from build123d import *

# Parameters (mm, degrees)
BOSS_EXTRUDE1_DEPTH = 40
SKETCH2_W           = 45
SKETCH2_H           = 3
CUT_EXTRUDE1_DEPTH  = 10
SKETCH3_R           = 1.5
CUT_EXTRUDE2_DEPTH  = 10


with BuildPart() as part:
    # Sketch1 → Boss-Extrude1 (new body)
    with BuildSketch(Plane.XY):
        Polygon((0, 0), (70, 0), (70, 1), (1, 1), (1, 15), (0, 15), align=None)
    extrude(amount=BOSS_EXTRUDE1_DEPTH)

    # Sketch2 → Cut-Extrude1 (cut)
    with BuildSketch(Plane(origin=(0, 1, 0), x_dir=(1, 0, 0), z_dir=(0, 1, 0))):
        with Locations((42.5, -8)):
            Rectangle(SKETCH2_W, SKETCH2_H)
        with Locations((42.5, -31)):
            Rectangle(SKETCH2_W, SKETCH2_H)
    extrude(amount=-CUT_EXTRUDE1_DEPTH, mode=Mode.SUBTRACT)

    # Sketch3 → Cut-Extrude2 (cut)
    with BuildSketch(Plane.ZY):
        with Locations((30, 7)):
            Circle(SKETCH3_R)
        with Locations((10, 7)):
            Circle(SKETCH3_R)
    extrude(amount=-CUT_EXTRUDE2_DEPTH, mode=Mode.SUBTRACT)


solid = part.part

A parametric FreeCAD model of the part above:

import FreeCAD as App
import Part
import Sketcher
from FreeCAD import Vector


def add_polygon(sketch, points):
    """Adds a closed chain of lines whose ends are joined by coincident constraints."""
    first, n = sketch.GeometryCount, len(points)
    for a, b in zip(points, points[1:] + points[:1]):
        sketch.addGeometry(Part.LineSegment(App.Vector(*a, 0), App.Vector(*b, 0)), False)
    for i in range(n):
        sketch.addConstraint(Sketcher.Constraint("Coincident", first + i, 2, first + (i + 1) % n, 1))

doc = App.newDocument("Part")
params = doc.addObject("Spreadsheet::Sheet", "Params")
for row, (alias, value) in enumerate([
    ("sketch1_width", "70 mm"),
    ("sketch1_width2", "69 mm"),
    ("sketch1_height", "14 mm"),
    ("pad1_length", "40 mm"),
    ("sketch2_width", "45 mm"),
    ("sketch2_height", "3 mm"),
    ("pocket1_length", "10 mm"),
    ("sketch3_diameter", "3 mm"),
    ("pocket2_length", "10 mm"),
], start=1):
    params.set(f"A{row}", alias)
    params.set(f"B{row}", "=" + value)
    params.setAlias(f"B{row}", alias)

body = doc.addObject("PartDesign::Body", "Body")

sketch1 = doc.addObject("Sketcher::SketchObject", "Sketch")
body.addObject(sketch1)
sketch1.AttachmentSupport = (doc.XY_Plane, [""])
sketch1.MapMode = "FlatFace"
add_polygon(sketch1, [(0, 0), (70, 0), (70, 1), (1, 1), (1, 15), (0, 15)])
sketch1.addConstraint([
    Sketcher.Constraint("Horizontal", 0),
    Sketcher.Constraint("Vertical", 1),
    Sketcher.Constraint("Horizontal", 2),
    Sketcher.Constraint("Vertical", 3),
    Sketcher.Constraint("Horizontal", 4),
    Sketcher.Constraint("Vertical", 5),
    Sketcher.Constraint("Coincident", 5, 2, -1, 1),
    Sketcher.Constraint("Equal", 4, 1),
    Sketcher.Constraint("DistanceX", 0, 1, 0, 2, 70.0),
    Sketcher.Constraint("DistanceX", 2, 2, 2, 1, 69.0),
    Sketcher.Constraint("DistanceY", 3, 1, 3, 2, 14.0),
])
sketch1.setExpression("Constraints[14]", "Params.sketch1_width")
sketch1.setExpression("Constraints[15]", "Params.sketch1_width2")
sketch1.setExpression("Constraints[16]", "Params.sketch1_height")
pad1 = doc.addObject("PartDesign::Pad", "Pad")
body.addObject(pad1)
pad1.Profile = sketch1
pad1.setExpression("Length", "Params.pad1_length")

sketch2 = doc.addObject("Sketcher::SketchObject", "Sketch001")
body.addObject(sketch2)
sketch2.AttachmentSupport = (doc.XZ_Plane, [""])
sketch2.MapMode = "FlatFace"
sketch2.AttachmentOffset = App.Placement(Vector(0, 0, -1), App.Rotation())
add_polygon(sketch2, [(20, 6.5), (20, 9.5), (65, 9.5), (65, 6.5)])
add_polygon(sketch2, [(20, 29.5), (20, 32.5), (65, 32.5), (65, 29.5)])
sketch2.addConstraint([
    Sketcher.Constraint("Vertical", 0),
    Sketcher.Constraint("Horizontal", 1),
    Sketcher.Constraint("Vertical", 2),
    Sketcher.Constraint("Horizontal", 3),
    Sketcher.Constraint("Vertical", 4),
    Sketcher.Constraint("Horizontal", 5),
    Sketcher.Constraint("Vertical", 6),
    Sketcher.Constraint("Horizontal", 7),
    Sketcher.Constraint("Vertical", 3, 2, 4, 2),
    Sketcher.Constraint("Vertical", 2, 2, 5, 2),
    Sketcher.Constraint("Equal", 2, 4),
    Sketcher.Constraint("DistanceX", 1, 1, 1, 2, 45.0),
    Sketcher.Constraint("DistanceY", 0, 1, 0, 2, 3.0),
    Sketcher.Constraint("DistanceX", -1, 1, 0, 2, 20.0),
    Sketcher.Constraint("DistanceY", 0, 2, 4, 2, 23.0),
    Sketcher.Constraint("DistanceY", -1, 1, 0, 2, 9.5),
])
sketch2.setExpression("Constraints[19]", "Params.sketch2_width")
sketch2.setExpression("Constraints[20]", "Params.sketch2_height")
pocket1 = doc.addObject("PartDesign::Pocket", "Pocket")
body.addObject(pocket1)
pocket1.Profile = sketch2
pocket1.setExpression("Length", "Params.pocket1_length")
pocket1.Reversed = True

sketch3 = doc.addObject("Sketcher::SketchObject", "Sketch002")
body.addObject(sketch3)
sketch3.AttachmentSupport = (doc.YZ_Plane, [""])
sketch3.MapMode = "FlatFace"
sketch3.addGeometry([
    Part.Circle(Vector(7, 30, 0), Vector(0, 0, 1), 1.5),
    Part.Circle(Vector(7, 10, 0), Vector(0, 0, 1), 1.5),
], False)
sketch3.addConstraint([
    Sketcher.Constraint("Equal", 0, 1),
    Sketcher.Constraint("Vertical", 0, 3, 1, 3),
    Sketcher.Constraint("Diameter", 0, 3.0),
    Sketcher.Constraint("DistanceX", -1, 1, 0, 3, 7.0),
    Sketcher.Constraint("DistanceY", -1, 1, 0, 3, 30.0),
    Sketcher.Constraint("DistanceY", -1, 1, 1, 3, 10.0),
])
sketch3.setExpression("Constraints[2]", "Params.sketch3_diameter")
pocket2 = doc.addObject("PartDesign::Pocket", "Pocket001")
body.addObject(pocket2)
pocket2.Profile = sketch3
pocket2.setExpression("Length", "Params.pocket2_length")
pocket2.Reversed = True

doc.recompute()
